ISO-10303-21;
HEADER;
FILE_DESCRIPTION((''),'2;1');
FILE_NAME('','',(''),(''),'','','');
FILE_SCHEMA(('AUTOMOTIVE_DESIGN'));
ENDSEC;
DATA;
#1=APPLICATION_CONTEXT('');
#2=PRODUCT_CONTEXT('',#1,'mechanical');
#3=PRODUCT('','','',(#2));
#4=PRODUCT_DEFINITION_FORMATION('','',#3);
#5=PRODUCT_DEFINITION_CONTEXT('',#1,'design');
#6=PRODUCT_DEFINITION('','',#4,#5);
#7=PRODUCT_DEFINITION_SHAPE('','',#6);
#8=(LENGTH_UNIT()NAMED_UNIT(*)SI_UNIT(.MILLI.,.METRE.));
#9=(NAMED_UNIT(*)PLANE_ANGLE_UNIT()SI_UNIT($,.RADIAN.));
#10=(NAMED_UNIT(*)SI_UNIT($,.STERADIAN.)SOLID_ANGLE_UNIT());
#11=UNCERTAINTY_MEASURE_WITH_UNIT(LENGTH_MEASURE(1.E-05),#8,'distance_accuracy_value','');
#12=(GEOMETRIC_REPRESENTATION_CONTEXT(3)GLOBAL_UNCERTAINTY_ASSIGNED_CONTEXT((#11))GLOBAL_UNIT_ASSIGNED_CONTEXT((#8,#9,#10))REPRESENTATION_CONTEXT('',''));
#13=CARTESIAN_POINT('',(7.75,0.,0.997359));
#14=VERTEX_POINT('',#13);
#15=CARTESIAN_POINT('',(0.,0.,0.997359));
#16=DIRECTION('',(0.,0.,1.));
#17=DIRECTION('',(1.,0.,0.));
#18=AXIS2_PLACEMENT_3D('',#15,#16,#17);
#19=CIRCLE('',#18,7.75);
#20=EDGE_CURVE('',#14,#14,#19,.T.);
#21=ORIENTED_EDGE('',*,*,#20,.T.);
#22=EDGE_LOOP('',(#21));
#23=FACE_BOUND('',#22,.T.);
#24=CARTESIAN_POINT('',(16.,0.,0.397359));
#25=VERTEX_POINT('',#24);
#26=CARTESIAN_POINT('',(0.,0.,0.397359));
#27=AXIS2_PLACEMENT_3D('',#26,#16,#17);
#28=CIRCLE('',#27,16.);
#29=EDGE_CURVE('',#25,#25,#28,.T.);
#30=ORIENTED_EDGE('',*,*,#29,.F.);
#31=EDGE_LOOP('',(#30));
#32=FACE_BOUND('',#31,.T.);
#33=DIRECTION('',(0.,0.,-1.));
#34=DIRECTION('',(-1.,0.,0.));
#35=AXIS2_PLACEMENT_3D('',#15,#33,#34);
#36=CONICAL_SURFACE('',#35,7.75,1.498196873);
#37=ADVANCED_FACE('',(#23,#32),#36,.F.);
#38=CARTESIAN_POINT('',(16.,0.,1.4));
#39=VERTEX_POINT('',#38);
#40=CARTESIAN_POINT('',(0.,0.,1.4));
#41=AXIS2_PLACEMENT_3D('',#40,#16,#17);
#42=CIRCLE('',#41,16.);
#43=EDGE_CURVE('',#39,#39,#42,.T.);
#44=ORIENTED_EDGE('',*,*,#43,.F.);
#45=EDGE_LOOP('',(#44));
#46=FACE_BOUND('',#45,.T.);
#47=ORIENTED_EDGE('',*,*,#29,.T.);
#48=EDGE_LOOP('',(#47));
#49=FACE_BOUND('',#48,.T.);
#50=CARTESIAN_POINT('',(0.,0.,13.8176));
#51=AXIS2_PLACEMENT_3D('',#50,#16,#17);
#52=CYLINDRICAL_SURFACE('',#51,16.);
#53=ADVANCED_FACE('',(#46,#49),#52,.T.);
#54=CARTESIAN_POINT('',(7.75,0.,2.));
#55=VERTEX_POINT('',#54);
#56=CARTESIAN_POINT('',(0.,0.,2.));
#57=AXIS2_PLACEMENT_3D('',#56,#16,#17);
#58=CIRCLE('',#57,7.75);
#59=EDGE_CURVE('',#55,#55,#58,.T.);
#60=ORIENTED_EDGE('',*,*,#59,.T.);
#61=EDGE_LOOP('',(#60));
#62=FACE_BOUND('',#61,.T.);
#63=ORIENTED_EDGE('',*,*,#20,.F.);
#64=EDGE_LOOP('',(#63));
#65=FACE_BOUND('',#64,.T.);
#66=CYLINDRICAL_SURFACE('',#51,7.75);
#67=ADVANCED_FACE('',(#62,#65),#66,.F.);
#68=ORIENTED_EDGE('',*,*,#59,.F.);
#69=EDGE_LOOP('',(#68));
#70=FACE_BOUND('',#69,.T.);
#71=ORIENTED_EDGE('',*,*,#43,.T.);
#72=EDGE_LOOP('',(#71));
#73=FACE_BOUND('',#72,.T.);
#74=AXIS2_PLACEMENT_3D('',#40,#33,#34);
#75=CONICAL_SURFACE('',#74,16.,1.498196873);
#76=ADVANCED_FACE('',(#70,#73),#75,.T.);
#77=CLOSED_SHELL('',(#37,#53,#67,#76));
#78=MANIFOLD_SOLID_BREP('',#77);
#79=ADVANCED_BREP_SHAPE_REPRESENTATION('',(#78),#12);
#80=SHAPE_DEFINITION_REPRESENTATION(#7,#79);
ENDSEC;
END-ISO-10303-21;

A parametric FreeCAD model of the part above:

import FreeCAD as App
import Part
import Sketcher
Q = App.Units.Quantity

doc = App.newDocument("Part")
params = doc.addObject("Spreadsheet::Sheet", "Params")
for row, (alias, value) in enumerate([
    ("revolution_angle", "360 deg"),
], start=1):
    params.set(f"A{row}", alias)
    params.set(f"B{row}", "=" + value)
    params.setAlias(f"B{row}", alias)

body = doc.addObject("PartDesign::Body", "Body")

sketch1 = body.newObject("Sketcher::SketchObject", "Sketch")
sketch1.AttachmentSupport = (doc.getObject("YZ_Plane"), [""])
sketch1.MapMode = "FlatFace"
sketch1.addGeometry(Part.LineSegment(App.Vector(16, 1.4, 0), App.Vector(7.75, 2, 0)), False)
sketch1.addGeometry(Part.LineSegment(App.Vector(7.75, 2, 0), App.Vector(7.75, 0.997359, 0)), False)
sketch1.addGeometry(Part.LineSegment(App.Vector(7.75, 0.997359, 0), App.Vector(16, 0.397359, 0)), False)
sketch1.addGeometry(Part.LineSegment(App.Vector(16, 0.397359, 0), App.Vector(16, 1.4, 0)), False)
sketch1.addConstraint(Sketcher.Constraint("Coincident", 0, 2, 1, 1))
sketch1.addConstraint(Sketcher.Constraint("Coincident", 1, 2, 2, 1))
sketch1.addConstraint(Sketcher.Constraint("Coincident", 2, 2, 3, 1))
sketch1.addConstraint(Sketcher.Constraint("Coincident", 3, 2, 0, 1))
sketch1.addConstraint(Sketcher.Constraint("Vertical", 1))
sketch1.addConstraint(Sketcher.Constraint("Vertical", 3))
sketch1.addConstraint(Sketcher.Constraint("Parallel", 0, 2))
sketch1.addConstraint(Sketcher.Constraint("DistanceY", -1, 1, 0, 2, Q("2 mm")))
sketch1.addConstraint(Sketcher.Constraint("DistanceX", -1, 1, 2, 2, Q("16 mm")))
sketch1.addConstraint(Sketcher.Constraint("DistanceY", -1, 1, 3, 2, Q("1.4 mm")))
sketch1.addConstraint(Sketcher.Constraint("DistanceX", -1, 1, 0, 2, Q("7.75 mm")))
sketch1.addConstraint(Sketcher.Constraint("DistanceY", 1, 2, 1, 1, Q("1.002641 mm")))
revolution = body.newObject("PartDesign::Revolution", "Revolution")
revolution.Profile = sketch1
revolution.ReferenceAxis = (sketch1, ["V_Axis"])
revolution.setExpression("Angle", "Params.revolution_angle")

doc.recompute()
